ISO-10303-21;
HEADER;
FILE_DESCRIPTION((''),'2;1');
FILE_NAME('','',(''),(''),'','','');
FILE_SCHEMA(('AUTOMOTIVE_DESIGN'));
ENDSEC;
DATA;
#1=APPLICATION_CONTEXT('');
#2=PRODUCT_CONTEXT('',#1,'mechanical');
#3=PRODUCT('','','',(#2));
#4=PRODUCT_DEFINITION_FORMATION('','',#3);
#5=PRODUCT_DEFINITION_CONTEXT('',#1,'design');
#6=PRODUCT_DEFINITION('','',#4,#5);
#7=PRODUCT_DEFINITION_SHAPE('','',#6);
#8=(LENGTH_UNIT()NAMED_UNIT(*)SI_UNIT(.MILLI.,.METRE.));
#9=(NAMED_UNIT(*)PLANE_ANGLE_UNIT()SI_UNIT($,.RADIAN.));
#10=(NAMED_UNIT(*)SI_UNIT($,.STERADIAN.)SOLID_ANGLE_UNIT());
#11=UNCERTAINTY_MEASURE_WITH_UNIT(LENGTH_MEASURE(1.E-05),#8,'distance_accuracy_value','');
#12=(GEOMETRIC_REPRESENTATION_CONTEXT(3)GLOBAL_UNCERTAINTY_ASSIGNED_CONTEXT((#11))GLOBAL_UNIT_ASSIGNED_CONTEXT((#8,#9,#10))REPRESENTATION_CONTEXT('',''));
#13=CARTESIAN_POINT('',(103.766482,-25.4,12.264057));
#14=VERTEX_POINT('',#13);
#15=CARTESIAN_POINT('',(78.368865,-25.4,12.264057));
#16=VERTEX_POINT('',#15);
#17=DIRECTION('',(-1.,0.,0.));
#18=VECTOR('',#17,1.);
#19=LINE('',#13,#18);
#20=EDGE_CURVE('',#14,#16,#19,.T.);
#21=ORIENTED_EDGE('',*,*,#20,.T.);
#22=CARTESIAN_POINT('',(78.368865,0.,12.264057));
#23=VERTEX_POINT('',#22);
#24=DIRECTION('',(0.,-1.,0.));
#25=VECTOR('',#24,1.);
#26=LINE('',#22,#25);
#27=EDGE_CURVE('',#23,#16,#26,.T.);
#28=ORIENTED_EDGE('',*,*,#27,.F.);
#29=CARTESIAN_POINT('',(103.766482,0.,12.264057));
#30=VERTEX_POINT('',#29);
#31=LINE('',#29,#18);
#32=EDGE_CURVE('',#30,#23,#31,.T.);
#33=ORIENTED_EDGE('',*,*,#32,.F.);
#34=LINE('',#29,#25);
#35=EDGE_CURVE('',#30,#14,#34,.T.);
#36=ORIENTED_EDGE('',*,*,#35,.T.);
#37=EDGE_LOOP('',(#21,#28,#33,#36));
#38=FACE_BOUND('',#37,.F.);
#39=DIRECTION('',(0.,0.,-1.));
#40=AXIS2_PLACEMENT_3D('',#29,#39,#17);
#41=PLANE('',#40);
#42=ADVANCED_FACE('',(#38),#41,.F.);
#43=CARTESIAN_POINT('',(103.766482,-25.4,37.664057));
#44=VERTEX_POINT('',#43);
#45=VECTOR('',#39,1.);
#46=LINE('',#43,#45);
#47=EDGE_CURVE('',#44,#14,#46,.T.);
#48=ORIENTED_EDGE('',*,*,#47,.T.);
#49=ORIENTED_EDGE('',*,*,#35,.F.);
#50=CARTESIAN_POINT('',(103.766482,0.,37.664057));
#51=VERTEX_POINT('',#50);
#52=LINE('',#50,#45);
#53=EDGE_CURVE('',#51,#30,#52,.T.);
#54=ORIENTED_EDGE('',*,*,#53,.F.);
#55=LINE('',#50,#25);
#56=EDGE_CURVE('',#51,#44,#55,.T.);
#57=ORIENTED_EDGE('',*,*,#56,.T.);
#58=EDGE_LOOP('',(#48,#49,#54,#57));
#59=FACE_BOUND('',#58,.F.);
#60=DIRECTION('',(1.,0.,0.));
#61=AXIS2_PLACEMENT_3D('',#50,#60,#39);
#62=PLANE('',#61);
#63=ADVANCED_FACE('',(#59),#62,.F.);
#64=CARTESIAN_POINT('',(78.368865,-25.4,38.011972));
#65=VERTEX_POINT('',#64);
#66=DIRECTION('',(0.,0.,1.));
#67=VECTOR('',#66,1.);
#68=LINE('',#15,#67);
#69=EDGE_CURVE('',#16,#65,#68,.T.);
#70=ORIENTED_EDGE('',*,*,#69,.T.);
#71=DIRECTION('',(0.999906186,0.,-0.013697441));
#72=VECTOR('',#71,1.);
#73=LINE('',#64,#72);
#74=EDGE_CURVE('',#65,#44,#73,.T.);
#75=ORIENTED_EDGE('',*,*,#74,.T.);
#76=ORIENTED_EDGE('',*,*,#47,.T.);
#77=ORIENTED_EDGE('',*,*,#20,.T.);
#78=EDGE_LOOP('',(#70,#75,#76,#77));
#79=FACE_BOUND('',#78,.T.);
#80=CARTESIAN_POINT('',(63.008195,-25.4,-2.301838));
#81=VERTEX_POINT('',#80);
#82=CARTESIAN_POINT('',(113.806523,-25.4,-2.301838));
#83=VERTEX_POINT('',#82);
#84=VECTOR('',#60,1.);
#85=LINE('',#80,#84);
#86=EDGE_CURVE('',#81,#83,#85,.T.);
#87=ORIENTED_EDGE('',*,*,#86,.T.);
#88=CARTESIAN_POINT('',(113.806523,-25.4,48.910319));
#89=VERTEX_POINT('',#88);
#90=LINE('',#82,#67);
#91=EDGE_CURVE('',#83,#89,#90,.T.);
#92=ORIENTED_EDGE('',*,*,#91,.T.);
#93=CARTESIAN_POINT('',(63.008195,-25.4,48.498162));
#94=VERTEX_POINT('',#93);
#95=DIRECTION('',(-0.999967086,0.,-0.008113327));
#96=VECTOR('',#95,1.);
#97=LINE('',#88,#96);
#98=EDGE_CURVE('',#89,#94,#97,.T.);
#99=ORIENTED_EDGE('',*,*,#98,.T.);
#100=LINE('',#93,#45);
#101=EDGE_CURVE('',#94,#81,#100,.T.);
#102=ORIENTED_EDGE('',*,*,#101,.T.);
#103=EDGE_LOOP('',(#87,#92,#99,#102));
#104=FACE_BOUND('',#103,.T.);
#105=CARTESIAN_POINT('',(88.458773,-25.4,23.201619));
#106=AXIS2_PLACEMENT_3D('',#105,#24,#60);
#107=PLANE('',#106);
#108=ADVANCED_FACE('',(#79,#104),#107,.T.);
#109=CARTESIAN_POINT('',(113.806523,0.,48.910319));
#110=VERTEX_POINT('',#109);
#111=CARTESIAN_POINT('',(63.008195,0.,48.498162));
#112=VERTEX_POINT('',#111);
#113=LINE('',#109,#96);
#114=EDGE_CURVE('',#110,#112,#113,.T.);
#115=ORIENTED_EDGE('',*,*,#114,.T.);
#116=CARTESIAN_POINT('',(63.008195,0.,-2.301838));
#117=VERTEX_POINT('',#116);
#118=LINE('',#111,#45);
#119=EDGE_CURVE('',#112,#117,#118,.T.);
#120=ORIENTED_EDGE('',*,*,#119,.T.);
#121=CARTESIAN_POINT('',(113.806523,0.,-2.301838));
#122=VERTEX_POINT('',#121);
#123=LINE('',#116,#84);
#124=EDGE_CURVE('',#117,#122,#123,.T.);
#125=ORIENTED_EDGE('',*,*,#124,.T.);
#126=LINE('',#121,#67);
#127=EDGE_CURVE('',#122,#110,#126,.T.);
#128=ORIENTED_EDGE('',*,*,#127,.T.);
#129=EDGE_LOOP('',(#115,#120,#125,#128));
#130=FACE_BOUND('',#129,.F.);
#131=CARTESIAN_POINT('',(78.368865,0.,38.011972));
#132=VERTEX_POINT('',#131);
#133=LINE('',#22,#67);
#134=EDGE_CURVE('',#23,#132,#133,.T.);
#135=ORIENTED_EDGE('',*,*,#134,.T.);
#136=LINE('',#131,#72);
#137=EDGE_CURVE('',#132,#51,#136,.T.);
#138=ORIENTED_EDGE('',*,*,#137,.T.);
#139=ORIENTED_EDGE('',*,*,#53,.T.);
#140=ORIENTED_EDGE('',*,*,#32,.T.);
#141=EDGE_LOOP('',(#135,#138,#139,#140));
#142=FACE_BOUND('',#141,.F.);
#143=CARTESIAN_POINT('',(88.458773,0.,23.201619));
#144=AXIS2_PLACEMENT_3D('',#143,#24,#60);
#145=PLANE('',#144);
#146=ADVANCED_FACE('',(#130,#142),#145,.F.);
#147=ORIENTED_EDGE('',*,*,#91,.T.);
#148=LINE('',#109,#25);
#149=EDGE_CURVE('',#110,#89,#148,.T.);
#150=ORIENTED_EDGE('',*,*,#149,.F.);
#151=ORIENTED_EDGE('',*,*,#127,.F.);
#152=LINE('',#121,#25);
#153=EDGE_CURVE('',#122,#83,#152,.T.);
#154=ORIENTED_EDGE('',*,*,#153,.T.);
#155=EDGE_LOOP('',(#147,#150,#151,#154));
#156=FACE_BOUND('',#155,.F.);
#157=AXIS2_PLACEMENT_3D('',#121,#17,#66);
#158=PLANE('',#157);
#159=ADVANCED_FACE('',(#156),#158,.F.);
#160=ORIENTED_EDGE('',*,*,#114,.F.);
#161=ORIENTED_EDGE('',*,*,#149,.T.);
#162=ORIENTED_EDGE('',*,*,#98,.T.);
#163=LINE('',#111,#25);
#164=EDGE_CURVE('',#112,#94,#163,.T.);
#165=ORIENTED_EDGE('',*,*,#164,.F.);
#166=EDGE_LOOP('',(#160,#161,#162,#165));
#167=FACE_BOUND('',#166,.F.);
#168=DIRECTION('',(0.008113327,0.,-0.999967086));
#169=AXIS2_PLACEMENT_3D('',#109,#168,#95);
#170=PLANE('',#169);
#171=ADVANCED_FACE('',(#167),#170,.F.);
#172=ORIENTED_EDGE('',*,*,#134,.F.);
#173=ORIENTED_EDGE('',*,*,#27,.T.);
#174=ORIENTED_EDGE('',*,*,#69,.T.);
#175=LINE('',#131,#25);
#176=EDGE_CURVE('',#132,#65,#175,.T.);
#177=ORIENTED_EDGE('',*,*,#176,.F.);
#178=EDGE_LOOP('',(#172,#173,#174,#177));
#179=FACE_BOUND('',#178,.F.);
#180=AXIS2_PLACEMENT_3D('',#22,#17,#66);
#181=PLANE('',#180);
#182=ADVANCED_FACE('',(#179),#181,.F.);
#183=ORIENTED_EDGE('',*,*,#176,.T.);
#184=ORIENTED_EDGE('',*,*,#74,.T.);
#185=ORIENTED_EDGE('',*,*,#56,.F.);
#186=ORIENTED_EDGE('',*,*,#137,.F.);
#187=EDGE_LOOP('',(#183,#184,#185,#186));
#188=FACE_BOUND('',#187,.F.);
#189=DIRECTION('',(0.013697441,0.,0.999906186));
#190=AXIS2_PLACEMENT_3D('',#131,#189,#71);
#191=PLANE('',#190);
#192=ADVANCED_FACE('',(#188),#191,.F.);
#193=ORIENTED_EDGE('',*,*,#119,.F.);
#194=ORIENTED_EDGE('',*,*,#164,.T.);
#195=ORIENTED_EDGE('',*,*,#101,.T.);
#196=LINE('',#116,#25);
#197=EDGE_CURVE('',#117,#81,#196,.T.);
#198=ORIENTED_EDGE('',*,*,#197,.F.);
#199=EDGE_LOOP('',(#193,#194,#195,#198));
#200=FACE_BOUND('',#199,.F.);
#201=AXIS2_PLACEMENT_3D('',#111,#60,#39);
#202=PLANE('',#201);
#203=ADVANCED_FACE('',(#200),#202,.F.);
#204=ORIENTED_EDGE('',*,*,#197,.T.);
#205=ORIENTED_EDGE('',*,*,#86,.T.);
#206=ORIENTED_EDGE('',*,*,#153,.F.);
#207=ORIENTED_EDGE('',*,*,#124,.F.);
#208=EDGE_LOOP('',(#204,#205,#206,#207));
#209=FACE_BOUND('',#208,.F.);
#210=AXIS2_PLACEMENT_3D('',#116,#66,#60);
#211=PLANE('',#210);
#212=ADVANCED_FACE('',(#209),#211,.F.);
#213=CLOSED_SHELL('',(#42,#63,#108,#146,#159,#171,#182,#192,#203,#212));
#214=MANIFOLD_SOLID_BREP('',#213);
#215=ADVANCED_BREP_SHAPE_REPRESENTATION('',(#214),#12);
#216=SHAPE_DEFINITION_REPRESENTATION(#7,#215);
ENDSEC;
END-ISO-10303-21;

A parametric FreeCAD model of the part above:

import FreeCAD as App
import Part
import Sketcher
from FreeCAD import Vector
Q = App.Units.Quantity


def add_polygon(sketch, points):
    """Adds a closed chain of lines whose ends are joined by coincident constraints."""
    first, n = sketch.GeometryCount, len(points)
    for a, b in zip(points, points[1:] + points[:1]):
        sketch.addGeometry(Part.LineSegment(App.Vector(*a, 0), App.Vector(*b, 0)), False)
    for i in range(n):
        sketch.addConstraint(Sketcher.Constraint("Coincident", first + i, 2, first + (i + 1) % n, 1))

doc = App.newDocument("Part")
params = doc.addObject("Spreadsheet::Sheet", "Params")
for row, (alias, value) in enumerate([
    ("sketch1_height", "2 in"),
    ("sketch1_height2", "1 in"),
    ("sketch1_length", "2 in"),
    ("sketch1_length2", "1 in"),
    ("pad1_length", "1 in"),
], start=1):
    params.set(f"A{row}", alias)
    params.set(f"B{row}", "=" + value)
    params.setAlias(f"B{row}", alias)

body = doc.addObject("PartDesign::Body", "Body")

# Sketch on XZ plane
sketch1 = body.newObject("Sketcher::SketchObject", "Sketch")
sketch1.AttachmentSupport = (doc.getObject("XZ_Plane"), [""])
sketch1.MapMode = "FlatFace"
add_polygon(sketch1, [(114, 49), (63, 48), (63, -2), (114, -2)])  # lines 0-3
add_polygon(sketch1, [(104, 12), (78, 12), (78, 38), (104, 38)])  # lines 4-7
sketch1.addConstraint(Sketcher.Constraint("Vertical", 1))
sketch1.addConstraint(Sketcher.Constraint("Horizontal", 2))
sketch1.addConstraint(Sketcher.Constraint("Vertical", 3))
sketch1.addConstraint(Sketcher.Constraint("Horizontal", 4))
sketch1.addConstraint(Sketcher.Constraint("Vertical", 5))
sketch1.addConstraint(Sketcher.Constraint("Vertical", 7))
sketch1.addConstraint(Sketcher.Constraint("DistanceY", 1, 2, 1, 1, Q("2 in")))
sketch1.addConstraint(Sketcher.Constraint("DistanceY", 7, 2, 7, 1, Q("1 in")))
sketch1.addConstraint(Sketcher.Constraint("Distance", 0, Q("2 in")))
sketch1.addConstraint(Sketcher.Constraint("Distance", 6, Q("1 in")))
sketch1.addConstraint(Sketcher.Constraint("DistanceX", 2, 1, 2, 2, 50.798328))
sketch1.addConstraint(Sketcher.Constraint("DistanceX", 4, 2, 4, 1, 25.397617))
sketch1.addConstraint(Sketcher.Constraint("DistanceY", 1, 2, -1, 1, 2.301838))
sketch1.addConstraint(Sketcher.Constraint("DistanceX", -1, 1, 6, 2, 103.766482))
sketch1.addConstraint(Sketcher.Constraint("DistanceX", 1, 2, 4, 2, 15.36067))
sketch1.addConstraint(Sketcher.Constraint("DistanceY", 5, 2, 0, 2, 10.48619))
sketch1.setExpression("Constraints[14]", "Params.sketch1_height")
sketch1.setExpression("Constraints[15]", "Params.sketch1_height2")
sketch1.setExpression("Constraints[16]", "Params.sketch1_length")
sketch1.setExpression("Constraints[17]", "Params.sketch1_length2")
pad1 = body.newObject("PartDesign::Pad", "Pad")
pad1.Profile = sketch1
pad1.setExpression("Length", "Params.pad1_length")

doc.recompute()
